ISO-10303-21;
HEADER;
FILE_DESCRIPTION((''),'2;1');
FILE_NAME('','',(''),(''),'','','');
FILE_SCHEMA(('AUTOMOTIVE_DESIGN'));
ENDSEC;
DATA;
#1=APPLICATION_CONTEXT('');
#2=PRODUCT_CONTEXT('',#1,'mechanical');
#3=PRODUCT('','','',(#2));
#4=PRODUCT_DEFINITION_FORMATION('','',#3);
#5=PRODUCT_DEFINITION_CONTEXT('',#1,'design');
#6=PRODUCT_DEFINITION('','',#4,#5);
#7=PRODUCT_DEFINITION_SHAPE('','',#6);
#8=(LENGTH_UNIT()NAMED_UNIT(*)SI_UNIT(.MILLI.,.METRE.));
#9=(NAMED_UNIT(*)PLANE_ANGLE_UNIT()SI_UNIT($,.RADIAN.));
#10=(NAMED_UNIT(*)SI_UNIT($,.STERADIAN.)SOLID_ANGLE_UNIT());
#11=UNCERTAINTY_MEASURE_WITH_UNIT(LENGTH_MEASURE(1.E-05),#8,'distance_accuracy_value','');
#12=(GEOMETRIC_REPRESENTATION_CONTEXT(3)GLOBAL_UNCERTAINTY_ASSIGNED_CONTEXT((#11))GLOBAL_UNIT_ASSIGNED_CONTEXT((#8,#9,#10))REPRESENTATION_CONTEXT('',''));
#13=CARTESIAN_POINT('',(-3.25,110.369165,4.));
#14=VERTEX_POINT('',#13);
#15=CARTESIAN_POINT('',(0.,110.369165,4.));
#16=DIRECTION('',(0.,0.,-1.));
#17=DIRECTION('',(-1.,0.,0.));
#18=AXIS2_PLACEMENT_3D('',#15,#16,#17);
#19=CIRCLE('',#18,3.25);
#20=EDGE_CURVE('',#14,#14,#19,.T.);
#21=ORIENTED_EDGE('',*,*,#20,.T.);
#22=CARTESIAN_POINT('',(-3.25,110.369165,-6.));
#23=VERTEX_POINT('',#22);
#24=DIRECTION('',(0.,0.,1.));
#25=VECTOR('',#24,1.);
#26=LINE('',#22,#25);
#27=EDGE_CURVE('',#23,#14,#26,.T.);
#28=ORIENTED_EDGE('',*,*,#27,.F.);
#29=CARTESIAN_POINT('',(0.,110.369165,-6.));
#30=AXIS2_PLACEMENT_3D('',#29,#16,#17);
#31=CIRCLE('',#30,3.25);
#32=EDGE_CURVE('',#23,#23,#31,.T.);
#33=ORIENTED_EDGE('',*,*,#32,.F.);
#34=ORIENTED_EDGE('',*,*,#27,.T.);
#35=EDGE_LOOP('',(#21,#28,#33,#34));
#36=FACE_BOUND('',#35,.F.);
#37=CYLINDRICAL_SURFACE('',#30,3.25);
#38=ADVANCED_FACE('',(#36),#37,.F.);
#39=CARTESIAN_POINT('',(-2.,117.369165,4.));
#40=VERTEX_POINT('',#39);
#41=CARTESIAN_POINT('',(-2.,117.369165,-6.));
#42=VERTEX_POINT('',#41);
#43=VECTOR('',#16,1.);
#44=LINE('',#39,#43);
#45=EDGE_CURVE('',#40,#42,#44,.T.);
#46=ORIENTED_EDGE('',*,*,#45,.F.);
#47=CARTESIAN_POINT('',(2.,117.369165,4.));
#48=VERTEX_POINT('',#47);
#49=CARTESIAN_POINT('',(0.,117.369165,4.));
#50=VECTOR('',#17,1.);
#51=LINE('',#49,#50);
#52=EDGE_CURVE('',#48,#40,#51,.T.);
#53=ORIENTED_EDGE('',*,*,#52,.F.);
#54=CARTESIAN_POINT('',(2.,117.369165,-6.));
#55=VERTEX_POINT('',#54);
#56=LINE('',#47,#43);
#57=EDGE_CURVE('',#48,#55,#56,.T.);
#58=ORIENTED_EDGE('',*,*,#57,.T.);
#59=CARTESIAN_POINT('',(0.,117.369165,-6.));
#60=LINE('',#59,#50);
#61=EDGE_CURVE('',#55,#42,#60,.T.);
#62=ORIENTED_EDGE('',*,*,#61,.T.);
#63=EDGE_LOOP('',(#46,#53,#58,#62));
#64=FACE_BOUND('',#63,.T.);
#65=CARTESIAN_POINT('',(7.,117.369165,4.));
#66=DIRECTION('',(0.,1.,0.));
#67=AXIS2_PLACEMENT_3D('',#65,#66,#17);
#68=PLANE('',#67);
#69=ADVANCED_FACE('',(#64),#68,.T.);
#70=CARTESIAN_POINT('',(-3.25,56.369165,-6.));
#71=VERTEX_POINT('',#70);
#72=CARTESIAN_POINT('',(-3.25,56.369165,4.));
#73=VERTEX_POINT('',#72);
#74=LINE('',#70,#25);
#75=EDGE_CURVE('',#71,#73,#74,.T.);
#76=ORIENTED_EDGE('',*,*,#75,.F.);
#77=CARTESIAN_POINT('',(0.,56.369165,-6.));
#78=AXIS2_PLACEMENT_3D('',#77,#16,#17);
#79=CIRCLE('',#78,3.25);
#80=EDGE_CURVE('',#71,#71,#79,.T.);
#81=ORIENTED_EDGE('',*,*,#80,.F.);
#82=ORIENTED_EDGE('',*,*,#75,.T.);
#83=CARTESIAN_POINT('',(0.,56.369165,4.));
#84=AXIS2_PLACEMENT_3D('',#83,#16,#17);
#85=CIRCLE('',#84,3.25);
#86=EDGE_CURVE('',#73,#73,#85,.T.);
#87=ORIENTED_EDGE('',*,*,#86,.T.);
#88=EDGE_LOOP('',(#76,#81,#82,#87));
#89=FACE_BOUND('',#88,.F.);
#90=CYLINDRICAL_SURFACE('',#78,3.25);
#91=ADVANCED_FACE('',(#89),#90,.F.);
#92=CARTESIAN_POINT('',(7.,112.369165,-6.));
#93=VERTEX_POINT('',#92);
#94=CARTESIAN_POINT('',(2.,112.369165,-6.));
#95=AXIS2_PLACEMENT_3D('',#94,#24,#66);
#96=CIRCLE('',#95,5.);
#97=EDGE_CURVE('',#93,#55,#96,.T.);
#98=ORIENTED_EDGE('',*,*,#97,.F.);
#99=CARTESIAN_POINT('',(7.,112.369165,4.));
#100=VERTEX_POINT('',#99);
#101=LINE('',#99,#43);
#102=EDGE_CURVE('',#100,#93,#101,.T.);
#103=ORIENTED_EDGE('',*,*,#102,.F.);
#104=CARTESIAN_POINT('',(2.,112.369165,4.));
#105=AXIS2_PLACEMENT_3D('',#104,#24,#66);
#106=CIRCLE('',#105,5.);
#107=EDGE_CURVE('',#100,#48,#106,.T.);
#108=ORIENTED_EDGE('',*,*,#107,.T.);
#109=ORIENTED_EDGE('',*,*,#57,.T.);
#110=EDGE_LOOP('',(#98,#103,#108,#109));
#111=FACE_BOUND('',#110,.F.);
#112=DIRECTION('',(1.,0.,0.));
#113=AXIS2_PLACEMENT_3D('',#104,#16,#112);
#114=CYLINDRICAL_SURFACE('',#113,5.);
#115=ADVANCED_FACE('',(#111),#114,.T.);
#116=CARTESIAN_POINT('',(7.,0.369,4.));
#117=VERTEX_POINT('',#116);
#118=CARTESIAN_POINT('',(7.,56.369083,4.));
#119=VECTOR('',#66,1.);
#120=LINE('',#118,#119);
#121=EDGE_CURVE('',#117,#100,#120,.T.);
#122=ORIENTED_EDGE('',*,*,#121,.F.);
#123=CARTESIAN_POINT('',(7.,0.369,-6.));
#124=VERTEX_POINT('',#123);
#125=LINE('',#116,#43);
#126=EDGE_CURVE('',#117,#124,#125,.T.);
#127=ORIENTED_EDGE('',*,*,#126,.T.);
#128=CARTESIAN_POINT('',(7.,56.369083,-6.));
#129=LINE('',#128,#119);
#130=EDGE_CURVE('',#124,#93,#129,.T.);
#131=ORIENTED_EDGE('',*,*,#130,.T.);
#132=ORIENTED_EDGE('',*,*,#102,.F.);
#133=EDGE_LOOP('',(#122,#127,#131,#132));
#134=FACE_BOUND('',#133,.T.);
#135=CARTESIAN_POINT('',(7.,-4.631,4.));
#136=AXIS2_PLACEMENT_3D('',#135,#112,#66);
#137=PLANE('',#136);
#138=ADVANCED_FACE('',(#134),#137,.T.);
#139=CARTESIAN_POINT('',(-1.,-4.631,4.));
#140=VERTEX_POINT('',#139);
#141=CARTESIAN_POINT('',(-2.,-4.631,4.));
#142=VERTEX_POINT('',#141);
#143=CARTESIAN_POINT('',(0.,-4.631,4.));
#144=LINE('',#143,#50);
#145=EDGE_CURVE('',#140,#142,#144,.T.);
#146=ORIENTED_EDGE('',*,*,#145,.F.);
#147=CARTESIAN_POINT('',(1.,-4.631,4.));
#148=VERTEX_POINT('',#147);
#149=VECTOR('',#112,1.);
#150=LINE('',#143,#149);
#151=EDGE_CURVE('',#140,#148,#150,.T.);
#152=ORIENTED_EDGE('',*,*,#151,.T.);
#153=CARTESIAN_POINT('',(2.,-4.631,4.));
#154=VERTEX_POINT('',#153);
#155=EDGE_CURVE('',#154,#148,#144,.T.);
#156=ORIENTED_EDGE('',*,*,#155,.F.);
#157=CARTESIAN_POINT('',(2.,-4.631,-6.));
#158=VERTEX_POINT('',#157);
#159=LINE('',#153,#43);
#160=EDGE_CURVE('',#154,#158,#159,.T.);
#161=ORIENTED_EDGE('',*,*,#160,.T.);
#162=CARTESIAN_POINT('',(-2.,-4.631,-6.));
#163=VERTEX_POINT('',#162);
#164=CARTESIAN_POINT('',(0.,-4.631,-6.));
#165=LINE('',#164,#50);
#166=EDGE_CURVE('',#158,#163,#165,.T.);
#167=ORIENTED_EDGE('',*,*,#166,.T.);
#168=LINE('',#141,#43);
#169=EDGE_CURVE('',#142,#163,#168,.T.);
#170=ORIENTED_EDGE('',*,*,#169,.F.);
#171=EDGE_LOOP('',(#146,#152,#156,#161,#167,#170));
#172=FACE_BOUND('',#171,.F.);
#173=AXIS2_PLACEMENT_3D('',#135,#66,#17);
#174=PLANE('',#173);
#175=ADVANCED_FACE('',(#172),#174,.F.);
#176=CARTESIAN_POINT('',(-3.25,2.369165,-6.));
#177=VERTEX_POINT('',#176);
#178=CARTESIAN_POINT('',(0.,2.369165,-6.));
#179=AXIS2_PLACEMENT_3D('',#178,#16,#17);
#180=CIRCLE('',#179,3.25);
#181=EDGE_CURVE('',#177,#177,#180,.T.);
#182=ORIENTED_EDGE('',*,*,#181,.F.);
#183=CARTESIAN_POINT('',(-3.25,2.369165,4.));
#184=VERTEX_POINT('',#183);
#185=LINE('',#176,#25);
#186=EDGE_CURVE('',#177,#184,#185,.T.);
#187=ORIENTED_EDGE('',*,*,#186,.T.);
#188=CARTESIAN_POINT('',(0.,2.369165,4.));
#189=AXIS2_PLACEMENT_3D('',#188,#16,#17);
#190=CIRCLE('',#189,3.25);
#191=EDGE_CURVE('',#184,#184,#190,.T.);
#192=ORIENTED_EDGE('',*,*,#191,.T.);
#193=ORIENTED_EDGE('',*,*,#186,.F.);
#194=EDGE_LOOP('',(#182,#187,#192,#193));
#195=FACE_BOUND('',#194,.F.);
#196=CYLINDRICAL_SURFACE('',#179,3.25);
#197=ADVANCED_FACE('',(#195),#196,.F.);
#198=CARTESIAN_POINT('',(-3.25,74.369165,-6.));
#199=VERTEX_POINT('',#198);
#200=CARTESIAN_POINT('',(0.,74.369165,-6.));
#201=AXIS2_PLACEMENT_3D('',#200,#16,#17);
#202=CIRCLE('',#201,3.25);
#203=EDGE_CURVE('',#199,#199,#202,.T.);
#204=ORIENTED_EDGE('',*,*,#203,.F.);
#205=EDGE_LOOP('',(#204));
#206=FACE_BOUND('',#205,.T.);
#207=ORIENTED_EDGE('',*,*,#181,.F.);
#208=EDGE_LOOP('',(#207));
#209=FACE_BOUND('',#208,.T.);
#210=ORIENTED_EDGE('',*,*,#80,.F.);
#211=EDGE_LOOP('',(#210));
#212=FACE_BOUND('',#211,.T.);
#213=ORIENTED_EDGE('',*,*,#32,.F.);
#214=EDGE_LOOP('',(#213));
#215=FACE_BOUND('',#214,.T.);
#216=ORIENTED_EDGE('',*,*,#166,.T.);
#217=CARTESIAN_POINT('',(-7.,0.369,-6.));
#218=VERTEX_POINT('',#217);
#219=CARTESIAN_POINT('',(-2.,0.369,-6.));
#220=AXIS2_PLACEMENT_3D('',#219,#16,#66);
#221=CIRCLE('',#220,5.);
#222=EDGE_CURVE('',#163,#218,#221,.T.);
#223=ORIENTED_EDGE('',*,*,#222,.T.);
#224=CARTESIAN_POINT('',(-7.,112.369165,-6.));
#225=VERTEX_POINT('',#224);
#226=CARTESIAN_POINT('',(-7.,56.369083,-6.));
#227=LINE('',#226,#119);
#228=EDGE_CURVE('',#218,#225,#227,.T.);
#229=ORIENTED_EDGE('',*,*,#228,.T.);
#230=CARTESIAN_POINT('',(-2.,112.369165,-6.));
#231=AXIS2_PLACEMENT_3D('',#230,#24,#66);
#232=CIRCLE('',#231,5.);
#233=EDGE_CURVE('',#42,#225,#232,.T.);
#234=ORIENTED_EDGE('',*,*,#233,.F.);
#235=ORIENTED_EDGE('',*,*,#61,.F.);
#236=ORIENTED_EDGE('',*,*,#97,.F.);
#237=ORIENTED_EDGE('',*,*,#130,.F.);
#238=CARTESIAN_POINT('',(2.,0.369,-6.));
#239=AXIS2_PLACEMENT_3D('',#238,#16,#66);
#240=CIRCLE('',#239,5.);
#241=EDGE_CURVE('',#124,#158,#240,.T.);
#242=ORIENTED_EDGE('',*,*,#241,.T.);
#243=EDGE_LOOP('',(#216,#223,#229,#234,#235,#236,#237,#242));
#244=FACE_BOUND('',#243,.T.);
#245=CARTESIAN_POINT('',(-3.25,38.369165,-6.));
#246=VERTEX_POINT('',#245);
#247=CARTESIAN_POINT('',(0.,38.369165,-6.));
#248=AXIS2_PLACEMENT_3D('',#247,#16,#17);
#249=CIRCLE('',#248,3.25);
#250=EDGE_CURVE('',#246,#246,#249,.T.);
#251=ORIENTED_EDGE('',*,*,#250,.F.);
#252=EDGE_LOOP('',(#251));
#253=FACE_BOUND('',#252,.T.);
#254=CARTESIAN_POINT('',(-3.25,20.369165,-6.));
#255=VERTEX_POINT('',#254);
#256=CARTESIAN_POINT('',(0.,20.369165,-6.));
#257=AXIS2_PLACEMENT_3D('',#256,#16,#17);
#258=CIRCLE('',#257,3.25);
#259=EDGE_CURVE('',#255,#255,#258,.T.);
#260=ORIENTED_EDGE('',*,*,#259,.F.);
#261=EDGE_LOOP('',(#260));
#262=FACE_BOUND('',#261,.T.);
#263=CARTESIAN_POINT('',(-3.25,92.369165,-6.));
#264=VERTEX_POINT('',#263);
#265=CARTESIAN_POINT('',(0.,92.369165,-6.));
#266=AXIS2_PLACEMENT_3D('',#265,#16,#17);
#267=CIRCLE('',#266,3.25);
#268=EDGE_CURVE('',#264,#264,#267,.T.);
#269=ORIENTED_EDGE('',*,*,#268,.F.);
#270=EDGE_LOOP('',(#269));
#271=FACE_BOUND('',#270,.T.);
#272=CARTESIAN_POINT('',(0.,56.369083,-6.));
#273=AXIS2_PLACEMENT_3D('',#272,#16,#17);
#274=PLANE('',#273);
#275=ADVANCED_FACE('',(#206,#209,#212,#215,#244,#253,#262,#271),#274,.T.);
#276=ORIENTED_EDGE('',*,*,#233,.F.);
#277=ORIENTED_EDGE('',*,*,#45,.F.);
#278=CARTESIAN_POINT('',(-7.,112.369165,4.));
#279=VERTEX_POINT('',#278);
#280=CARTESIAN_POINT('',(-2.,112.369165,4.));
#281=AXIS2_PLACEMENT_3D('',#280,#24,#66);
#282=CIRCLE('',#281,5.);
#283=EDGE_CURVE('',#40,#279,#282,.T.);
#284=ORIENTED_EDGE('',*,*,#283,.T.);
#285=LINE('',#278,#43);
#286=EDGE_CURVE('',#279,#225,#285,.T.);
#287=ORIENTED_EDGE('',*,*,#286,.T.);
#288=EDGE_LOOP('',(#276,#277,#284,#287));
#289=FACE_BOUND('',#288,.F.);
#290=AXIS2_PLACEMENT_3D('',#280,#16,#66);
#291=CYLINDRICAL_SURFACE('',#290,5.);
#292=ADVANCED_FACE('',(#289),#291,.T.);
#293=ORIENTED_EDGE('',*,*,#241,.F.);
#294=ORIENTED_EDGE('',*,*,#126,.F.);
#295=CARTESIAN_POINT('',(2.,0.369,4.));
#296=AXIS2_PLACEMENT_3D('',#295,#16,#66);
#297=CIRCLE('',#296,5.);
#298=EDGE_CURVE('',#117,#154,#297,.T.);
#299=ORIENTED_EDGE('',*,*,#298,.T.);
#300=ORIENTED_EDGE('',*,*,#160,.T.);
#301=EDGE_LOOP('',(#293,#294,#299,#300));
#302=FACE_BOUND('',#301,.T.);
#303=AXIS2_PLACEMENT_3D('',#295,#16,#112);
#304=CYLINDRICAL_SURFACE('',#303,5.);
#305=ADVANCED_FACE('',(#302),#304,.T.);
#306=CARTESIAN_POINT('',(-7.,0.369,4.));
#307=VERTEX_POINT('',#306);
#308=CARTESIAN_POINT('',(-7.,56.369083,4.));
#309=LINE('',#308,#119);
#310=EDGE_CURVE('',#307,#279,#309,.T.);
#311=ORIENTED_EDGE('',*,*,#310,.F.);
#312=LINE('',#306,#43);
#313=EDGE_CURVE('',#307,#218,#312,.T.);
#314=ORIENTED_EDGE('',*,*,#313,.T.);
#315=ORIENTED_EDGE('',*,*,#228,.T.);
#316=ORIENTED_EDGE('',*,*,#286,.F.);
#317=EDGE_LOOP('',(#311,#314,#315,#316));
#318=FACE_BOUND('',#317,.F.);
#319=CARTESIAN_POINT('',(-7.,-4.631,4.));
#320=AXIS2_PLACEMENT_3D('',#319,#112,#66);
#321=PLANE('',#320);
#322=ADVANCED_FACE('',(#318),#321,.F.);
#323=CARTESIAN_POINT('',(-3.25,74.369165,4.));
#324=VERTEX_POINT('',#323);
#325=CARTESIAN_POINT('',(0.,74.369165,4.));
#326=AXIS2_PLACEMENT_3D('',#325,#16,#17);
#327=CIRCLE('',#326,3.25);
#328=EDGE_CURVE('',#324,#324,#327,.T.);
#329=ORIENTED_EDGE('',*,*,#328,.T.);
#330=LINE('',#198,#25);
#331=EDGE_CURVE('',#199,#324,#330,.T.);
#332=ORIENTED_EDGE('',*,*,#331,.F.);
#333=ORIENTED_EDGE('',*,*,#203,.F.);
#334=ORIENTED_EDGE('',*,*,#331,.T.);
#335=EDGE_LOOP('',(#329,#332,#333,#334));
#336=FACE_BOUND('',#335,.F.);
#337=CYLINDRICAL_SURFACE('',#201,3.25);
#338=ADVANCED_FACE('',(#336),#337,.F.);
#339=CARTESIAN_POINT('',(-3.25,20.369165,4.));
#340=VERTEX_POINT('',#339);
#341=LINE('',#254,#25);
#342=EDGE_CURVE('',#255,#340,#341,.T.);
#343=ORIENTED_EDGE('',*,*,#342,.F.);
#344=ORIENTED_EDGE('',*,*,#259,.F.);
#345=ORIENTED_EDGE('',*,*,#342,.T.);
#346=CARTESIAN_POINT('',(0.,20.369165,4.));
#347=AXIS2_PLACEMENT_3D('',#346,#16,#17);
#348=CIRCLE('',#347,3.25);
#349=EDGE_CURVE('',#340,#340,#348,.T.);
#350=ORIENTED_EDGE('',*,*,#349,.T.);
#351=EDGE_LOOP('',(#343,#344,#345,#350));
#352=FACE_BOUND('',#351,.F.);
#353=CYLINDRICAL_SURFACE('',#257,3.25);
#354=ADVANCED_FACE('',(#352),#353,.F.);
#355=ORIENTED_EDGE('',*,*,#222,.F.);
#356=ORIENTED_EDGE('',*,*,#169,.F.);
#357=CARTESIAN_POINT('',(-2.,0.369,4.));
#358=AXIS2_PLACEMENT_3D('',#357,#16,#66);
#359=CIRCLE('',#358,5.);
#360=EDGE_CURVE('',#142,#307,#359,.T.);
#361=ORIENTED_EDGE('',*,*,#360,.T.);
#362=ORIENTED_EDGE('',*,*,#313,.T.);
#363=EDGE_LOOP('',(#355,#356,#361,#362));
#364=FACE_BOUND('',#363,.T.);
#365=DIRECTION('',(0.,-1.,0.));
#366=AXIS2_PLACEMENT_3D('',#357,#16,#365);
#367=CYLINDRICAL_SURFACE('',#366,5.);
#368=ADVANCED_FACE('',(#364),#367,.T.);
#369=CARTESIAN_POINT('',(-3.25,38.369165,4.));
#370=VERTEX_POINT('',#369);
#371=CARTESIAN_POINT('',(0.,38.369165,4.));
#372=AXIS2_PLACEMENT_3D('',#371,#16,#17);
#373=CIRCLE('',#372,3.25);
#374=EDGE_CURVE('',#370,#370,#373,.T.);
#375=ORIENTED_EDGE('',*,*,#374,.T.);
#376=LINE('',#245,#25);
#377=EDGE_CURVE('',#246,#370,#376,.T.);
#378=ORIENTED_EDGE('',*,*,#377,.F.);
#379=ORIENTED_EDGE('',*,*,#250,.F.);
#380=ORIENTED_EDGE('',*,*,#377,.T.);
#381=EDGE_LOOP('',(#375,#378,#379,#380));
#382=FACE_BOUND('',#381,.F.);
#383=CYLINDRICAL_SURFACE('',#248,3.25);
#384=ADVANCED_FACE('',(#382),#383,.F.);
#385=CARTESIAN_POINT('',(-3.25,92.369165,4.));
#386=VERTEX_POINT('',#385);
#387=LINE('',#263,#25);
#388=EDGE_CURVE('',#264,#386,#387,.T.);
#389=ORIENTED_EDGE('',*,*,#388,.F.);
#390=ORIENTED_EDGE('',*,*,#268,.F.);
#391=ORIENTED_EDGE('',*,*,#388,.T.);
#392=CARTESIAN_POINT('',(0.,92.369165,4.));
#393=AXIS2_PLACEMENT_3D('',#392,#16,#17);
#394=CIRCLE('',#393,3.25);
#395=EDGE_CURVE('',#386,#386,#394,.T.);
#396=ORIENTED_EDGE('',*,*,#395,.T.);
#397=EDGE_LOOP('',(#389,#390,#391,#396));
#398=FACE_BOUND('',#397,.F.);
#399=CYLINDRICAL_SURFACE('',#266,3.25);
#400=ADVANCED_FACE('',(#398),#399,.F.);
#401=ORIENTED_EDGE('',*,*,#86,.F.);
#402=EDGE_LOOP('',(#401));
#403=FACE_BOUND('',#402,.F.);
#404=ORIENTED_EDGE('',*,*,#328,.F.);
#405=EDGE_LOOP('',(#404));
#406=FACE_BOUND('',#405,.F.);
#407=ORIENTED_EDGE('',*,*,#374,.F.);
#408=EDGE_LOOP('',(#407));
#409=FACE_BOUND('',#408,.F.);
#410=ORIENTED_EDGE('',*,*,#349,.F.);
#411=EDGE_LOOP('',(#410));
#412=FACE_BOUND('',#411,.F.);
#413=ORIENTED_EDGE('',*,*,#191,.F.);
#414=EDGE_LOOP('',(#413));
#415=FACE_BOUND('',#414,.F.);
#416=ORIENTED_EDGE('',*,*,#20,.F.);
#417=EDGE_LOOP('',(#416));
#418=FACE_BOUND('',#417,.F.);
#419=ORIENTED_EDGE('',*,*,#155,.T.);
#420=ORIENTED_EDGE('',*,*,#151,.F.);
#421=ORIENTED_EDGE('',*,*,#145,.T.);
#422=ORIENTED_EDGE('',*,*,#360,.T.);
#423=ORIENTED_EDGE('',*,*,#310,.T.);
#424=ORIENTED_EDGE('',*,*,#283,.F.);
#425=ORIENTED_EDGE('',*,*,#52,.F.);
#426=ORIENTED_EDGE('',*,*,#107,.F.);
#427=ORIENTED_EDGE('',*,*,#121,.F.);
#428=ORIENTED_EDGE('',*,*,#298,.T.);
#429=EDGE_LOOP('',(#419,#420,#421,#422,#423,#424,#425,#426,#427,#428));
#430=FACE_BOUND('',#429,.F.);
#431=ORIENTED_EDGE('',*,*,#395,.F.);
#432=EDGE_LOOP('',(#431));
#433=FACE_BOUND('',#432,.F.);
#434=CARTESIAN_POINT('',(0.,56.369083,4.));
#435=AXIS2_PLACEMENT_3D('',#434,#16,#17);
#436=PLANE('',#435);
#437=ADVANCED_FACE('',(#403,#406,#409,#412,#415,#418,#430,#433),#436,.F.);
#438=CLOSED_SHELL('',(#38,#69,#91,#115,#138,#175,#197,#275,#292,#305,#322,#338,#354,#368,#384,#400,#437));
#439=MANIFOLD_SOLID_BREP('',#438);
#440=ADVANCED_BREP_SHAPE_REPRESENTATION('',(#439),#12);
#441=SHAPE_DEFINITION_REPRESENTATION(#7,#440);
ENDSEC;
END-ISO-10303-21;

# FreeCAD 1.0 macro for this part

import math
import FreeCAD as App
import Part
import Sketcher
from FreeCAD import Vector
Q = App.Units.Quantity


def edges_at(feature, points):
    """Names of the edges that pass closest to the given points."""
    edges = feature.Shape.Edges
    near = lambda p: min(range(len(edges)), key=lambda i: edges[i].distToShape(Part.Vertex(*p))[0])
    return sorted({f"Edge{near(p) + 1}" for p in points})


def add_polygon(sketch, points):
    """Adds a closed chain of lines whose ends are joined by coincident constraints."""
    first, n = sketch.GeometryCount, len(points)
    for a, b in zip(points, points[1:] + points[:1]):
        sketch.addGeometry(Part.LineSegment(App.Vector(*a, 0), App.Vector(*b, 0)), False)
    for i in range(n):
        sketch.addConstraint(Sketcher.Constraint("Coincident", first + i, 2, first + (i + 1) % n, 1))

doc = App.newDocument("Part")
body = doc.addObject("PartDesign::Body", "Body")

# Sketch on XY plane
sketch1 = body.newObject("Sketcher::SketchObject", "Sketch")
sketch1.AttachmentSupport = (doc.getObject("XY_Plane"), [""])
sketch1.MapMode = "FlatFace"
add_polygon(sketch1, [(-6, 104.631), (-6, -4.631), (6, -4.631), (6, 104.631)])  # lines 0-3
sketch1.addConstraint([
    Sketcher.Constraint("Vertical", 0),
    Sketcher.Constraint("Horizontal", 1),
    Sketcher.Constraint("Vertical", 2),
    Sketcher.Constraint("Horizontal", 3),
    Sketcher.Constraint("DistanceX", 1, 1, 1, 2, Q("12 mm")),
    Sketcher.Constraint("DistanceX", 0, 2, -1, 1, Q("6 mm")),
    Sketcher.Constraint("DistanceY", 0, 2, 0, 1, Q("109.262 mm")),
    Sketcher.Constraint("DistanceY", 0, 2, -1, 1, Q("4.631 mm")),
])
pad1 = body.newObject("PartDesign::Pad", "Pad")
pad1.Profile = sketch1
pad1.Length = 4
doc.recompute()

fillet = body.newObject("PartDesign::Fillet", "Fillet")
fillet.Base = (pad1, edges_at(pad1, [(-6, -4.631, 2), (6, -4.631, 2)]))
fillet.Radius = 5

# Sketch on XY plane
sketch2 = body.newObject("Sketcher::SketchObject", "Sketch001")
sketch2.AttachmentSupport = (doc.getObject("XY_Plane"), [""])
sketch2.MapMode = "FlatFace"
sketch2.AttachmentOffset = App.Placement(Vector(0, 0, 4), App.Rotation())
sketch2.addGeometry([
    Part.LineSegment(Vector(2, 1.369, 0), Vector(2, 98.631, 0)),
    Part.ArcOfCircle(Part.Circle(Vector(0, 98.631, 0), Vector(0, 0, 1), 2), math.radians(0), math.radians(180)),
    Part.LineSegment(Vector(-2, 98.631, 0), Vector(-2, 1.369, 0)),
    Part.ArcOfCircle(Part.Circle(Vector(0, 1.369, 0), Vector(0, 0, 1), 2), math.radians(180), math.radians(360)),
], False)
sketch2.addConstraint([
    Sketcher.Constraint("Tangent", 0, 2, 1, 1),
    Sketcher.Constraint("Tangent", 1, 2, 2, 1),
    Sketcher.Constraint("Tangent", 2, 2, 3, 1),
    Sketcher.Constraint("Tangent", 3, 2, 0, 1),
    Sketcher.Constraint("Vertical", 0),
    Sketcher.Constraint("Vertical", 2),
    Sketcher.Constraint("PointOnObject", 1, 3, -2),
    Sketcher.Constraint("Radius", 1, Q("2 mm")),
    Sketcher.Constraint("DistanceY", 0, 1, 0, 2, Q("97.262 mm")),
    Sketcher.Constraint("DistanceY", -1, 1, 1, 3, Q("98.631 mm")),
])
pocket1 = body.newObject("PartDesign::Pocket", "Pocket")
pocket1.Profile = sketch2
pocket1.Length = 10.5

# Sketch on XY plane
sketch3 = body.newObject("Sketcher::SketchObject", "Sketch002")
sketch3.AttachmentSupport = (doc.getObject("XY_Plane"), [""])
sketch3.MapMode = "FlatFace"
sketch3.AttachmentOffset = App.Placement(Vector(0, 0, 4), App.Rotation())
add_polygon(sketch3, [(-6, 111.369165), (-6, 104.631), (6, 104.631), (6, 111.369165)])  # lines 0-3
sketch3.addConstraint([
    Sketcher.Constraint("Vertical", 0),
    Sketcher.Constraint("Horizontal", 1),
    Sketcher.Constraint("Vertical", 2),
    Sketcher.Constraint("Horizontal", 3),
    Sketcher.Constraint("DistanceX", 1, 1, 1, 2, Q("12 mm")),
    Sketcher.Constraint("DistanceX", 0, 2, -1, 1, Q("6 mm")),
    Sketcher.Constraint("DistanceY", -1, 1, 0, 2, Q("104.631 mm")),
    Sketcher.Constraint("DistanceY", 0, 2, 0, 1, Q("6.738165 mm")),
])
pad2 = body.newObject("PartDesign::Pad", "Pad001")
pad2.Profile = sketch3
pad2.Length = 4
pad2.Reversed = True

# Sketch on XY plane
sketch4 = body.newObject("Sketcher::SketchObject", "Sketch003")
sketch4.AttachmentSupport = (doc.getObject("XY_Plane"), [""])
sketch4.MapMode = "FlatFace"
add_polygon(sketch4, [(7, 117.369165), (7, -4.631), (-7, -4.631), (-7, 117.369165)])  # lines 0-3
sketch4.addConstraint([
    Sketcher.Constraint("Vertical", 0),
    Sketcher.Constraint("Horizontal", 1),
    Sketcher.Constraint("Vertical", 2),
    Sketcher.Constraint("Horizontal", 3),
    Sketcher.Constraint("DistanceX", 1, 2, 1, 1, Q("14 mm")),
    Sketcher.Constraint("DistanceX", -1, 1, 0, 2, Q("7 mm")),
    Sketcher.Constraint("DistanceY", 0, 2, -1, 1, Q("4.631 mm")),
    Sketcher.Constraint("DistanceY", 0, 2, 0, 1, Q("122.000165 mm")),
])
pad3 = body.newObject("PartDesign::Pad", "Pad002")
pad3.Profile = sketch4
pad3.Type = "TwoLengths"
pad3.Length = 6
pad3.Length2 = 4
pad3.Reversed = True

# Sketch on XY plane
sketch5 = body.newObject("Sketcher::SketchObject", "Sketch004")
sketch5.AttachmentSupport = (doc.getObject("XY_Plane"), [""])
sketch5.MapMode = "FlatFace"
sketch5.AttachmentOffset = App.Placement(Vector(0, 0, -6), App.Rotation())
sketch5.addGeometry(Part.Circle(Vector(0, 110.369165, 0), Vector(0, 0, 1), 3.25), False)
sketch5.addConstraint([
    Sketcher.Constraint("PointOnObject", 0, 3, -2),
    Sketcher.Constraint("Diameter", 0, Q("6.5 mm")),
    Sketcher.Constraint("DistanceY", -1, 1, 0, 3, Q("110.369165 mm")),
])
pocket2 = body.newObject("PartDesign::Pocket", "Pocket001")
pocket2.Profile = sketch5
pocket2.Length = 10
pocket2.Reversed = True
doc.recompute()

fillet2 = body.newObject("PartDesign::Fillet", "Fillet001")
fillet2.Base = (pocket2, edges_at(pocket2, [
    (-7, -4.631, -1),
    (-7, 117.369, -1),
    (7, 117.369, -1),
    (7, -4.631, -1),
]))
fillet2.Radius = 5
doc.recompute()

linearpattern = body.newObject("PartDesign::LinearPattern", "LinearPattern")
linearpattern.Originals = [pocket2]
linearpattern.Direction = (doc.getObject("Y_Axis"), [""])
linearpattern.Mode = "offset"
linearpattern.Offset = 18
linearpattern.Occurrences = 7
linearpattern.Reversed = True
body.Tip = linearpattern

doc.recompute()
